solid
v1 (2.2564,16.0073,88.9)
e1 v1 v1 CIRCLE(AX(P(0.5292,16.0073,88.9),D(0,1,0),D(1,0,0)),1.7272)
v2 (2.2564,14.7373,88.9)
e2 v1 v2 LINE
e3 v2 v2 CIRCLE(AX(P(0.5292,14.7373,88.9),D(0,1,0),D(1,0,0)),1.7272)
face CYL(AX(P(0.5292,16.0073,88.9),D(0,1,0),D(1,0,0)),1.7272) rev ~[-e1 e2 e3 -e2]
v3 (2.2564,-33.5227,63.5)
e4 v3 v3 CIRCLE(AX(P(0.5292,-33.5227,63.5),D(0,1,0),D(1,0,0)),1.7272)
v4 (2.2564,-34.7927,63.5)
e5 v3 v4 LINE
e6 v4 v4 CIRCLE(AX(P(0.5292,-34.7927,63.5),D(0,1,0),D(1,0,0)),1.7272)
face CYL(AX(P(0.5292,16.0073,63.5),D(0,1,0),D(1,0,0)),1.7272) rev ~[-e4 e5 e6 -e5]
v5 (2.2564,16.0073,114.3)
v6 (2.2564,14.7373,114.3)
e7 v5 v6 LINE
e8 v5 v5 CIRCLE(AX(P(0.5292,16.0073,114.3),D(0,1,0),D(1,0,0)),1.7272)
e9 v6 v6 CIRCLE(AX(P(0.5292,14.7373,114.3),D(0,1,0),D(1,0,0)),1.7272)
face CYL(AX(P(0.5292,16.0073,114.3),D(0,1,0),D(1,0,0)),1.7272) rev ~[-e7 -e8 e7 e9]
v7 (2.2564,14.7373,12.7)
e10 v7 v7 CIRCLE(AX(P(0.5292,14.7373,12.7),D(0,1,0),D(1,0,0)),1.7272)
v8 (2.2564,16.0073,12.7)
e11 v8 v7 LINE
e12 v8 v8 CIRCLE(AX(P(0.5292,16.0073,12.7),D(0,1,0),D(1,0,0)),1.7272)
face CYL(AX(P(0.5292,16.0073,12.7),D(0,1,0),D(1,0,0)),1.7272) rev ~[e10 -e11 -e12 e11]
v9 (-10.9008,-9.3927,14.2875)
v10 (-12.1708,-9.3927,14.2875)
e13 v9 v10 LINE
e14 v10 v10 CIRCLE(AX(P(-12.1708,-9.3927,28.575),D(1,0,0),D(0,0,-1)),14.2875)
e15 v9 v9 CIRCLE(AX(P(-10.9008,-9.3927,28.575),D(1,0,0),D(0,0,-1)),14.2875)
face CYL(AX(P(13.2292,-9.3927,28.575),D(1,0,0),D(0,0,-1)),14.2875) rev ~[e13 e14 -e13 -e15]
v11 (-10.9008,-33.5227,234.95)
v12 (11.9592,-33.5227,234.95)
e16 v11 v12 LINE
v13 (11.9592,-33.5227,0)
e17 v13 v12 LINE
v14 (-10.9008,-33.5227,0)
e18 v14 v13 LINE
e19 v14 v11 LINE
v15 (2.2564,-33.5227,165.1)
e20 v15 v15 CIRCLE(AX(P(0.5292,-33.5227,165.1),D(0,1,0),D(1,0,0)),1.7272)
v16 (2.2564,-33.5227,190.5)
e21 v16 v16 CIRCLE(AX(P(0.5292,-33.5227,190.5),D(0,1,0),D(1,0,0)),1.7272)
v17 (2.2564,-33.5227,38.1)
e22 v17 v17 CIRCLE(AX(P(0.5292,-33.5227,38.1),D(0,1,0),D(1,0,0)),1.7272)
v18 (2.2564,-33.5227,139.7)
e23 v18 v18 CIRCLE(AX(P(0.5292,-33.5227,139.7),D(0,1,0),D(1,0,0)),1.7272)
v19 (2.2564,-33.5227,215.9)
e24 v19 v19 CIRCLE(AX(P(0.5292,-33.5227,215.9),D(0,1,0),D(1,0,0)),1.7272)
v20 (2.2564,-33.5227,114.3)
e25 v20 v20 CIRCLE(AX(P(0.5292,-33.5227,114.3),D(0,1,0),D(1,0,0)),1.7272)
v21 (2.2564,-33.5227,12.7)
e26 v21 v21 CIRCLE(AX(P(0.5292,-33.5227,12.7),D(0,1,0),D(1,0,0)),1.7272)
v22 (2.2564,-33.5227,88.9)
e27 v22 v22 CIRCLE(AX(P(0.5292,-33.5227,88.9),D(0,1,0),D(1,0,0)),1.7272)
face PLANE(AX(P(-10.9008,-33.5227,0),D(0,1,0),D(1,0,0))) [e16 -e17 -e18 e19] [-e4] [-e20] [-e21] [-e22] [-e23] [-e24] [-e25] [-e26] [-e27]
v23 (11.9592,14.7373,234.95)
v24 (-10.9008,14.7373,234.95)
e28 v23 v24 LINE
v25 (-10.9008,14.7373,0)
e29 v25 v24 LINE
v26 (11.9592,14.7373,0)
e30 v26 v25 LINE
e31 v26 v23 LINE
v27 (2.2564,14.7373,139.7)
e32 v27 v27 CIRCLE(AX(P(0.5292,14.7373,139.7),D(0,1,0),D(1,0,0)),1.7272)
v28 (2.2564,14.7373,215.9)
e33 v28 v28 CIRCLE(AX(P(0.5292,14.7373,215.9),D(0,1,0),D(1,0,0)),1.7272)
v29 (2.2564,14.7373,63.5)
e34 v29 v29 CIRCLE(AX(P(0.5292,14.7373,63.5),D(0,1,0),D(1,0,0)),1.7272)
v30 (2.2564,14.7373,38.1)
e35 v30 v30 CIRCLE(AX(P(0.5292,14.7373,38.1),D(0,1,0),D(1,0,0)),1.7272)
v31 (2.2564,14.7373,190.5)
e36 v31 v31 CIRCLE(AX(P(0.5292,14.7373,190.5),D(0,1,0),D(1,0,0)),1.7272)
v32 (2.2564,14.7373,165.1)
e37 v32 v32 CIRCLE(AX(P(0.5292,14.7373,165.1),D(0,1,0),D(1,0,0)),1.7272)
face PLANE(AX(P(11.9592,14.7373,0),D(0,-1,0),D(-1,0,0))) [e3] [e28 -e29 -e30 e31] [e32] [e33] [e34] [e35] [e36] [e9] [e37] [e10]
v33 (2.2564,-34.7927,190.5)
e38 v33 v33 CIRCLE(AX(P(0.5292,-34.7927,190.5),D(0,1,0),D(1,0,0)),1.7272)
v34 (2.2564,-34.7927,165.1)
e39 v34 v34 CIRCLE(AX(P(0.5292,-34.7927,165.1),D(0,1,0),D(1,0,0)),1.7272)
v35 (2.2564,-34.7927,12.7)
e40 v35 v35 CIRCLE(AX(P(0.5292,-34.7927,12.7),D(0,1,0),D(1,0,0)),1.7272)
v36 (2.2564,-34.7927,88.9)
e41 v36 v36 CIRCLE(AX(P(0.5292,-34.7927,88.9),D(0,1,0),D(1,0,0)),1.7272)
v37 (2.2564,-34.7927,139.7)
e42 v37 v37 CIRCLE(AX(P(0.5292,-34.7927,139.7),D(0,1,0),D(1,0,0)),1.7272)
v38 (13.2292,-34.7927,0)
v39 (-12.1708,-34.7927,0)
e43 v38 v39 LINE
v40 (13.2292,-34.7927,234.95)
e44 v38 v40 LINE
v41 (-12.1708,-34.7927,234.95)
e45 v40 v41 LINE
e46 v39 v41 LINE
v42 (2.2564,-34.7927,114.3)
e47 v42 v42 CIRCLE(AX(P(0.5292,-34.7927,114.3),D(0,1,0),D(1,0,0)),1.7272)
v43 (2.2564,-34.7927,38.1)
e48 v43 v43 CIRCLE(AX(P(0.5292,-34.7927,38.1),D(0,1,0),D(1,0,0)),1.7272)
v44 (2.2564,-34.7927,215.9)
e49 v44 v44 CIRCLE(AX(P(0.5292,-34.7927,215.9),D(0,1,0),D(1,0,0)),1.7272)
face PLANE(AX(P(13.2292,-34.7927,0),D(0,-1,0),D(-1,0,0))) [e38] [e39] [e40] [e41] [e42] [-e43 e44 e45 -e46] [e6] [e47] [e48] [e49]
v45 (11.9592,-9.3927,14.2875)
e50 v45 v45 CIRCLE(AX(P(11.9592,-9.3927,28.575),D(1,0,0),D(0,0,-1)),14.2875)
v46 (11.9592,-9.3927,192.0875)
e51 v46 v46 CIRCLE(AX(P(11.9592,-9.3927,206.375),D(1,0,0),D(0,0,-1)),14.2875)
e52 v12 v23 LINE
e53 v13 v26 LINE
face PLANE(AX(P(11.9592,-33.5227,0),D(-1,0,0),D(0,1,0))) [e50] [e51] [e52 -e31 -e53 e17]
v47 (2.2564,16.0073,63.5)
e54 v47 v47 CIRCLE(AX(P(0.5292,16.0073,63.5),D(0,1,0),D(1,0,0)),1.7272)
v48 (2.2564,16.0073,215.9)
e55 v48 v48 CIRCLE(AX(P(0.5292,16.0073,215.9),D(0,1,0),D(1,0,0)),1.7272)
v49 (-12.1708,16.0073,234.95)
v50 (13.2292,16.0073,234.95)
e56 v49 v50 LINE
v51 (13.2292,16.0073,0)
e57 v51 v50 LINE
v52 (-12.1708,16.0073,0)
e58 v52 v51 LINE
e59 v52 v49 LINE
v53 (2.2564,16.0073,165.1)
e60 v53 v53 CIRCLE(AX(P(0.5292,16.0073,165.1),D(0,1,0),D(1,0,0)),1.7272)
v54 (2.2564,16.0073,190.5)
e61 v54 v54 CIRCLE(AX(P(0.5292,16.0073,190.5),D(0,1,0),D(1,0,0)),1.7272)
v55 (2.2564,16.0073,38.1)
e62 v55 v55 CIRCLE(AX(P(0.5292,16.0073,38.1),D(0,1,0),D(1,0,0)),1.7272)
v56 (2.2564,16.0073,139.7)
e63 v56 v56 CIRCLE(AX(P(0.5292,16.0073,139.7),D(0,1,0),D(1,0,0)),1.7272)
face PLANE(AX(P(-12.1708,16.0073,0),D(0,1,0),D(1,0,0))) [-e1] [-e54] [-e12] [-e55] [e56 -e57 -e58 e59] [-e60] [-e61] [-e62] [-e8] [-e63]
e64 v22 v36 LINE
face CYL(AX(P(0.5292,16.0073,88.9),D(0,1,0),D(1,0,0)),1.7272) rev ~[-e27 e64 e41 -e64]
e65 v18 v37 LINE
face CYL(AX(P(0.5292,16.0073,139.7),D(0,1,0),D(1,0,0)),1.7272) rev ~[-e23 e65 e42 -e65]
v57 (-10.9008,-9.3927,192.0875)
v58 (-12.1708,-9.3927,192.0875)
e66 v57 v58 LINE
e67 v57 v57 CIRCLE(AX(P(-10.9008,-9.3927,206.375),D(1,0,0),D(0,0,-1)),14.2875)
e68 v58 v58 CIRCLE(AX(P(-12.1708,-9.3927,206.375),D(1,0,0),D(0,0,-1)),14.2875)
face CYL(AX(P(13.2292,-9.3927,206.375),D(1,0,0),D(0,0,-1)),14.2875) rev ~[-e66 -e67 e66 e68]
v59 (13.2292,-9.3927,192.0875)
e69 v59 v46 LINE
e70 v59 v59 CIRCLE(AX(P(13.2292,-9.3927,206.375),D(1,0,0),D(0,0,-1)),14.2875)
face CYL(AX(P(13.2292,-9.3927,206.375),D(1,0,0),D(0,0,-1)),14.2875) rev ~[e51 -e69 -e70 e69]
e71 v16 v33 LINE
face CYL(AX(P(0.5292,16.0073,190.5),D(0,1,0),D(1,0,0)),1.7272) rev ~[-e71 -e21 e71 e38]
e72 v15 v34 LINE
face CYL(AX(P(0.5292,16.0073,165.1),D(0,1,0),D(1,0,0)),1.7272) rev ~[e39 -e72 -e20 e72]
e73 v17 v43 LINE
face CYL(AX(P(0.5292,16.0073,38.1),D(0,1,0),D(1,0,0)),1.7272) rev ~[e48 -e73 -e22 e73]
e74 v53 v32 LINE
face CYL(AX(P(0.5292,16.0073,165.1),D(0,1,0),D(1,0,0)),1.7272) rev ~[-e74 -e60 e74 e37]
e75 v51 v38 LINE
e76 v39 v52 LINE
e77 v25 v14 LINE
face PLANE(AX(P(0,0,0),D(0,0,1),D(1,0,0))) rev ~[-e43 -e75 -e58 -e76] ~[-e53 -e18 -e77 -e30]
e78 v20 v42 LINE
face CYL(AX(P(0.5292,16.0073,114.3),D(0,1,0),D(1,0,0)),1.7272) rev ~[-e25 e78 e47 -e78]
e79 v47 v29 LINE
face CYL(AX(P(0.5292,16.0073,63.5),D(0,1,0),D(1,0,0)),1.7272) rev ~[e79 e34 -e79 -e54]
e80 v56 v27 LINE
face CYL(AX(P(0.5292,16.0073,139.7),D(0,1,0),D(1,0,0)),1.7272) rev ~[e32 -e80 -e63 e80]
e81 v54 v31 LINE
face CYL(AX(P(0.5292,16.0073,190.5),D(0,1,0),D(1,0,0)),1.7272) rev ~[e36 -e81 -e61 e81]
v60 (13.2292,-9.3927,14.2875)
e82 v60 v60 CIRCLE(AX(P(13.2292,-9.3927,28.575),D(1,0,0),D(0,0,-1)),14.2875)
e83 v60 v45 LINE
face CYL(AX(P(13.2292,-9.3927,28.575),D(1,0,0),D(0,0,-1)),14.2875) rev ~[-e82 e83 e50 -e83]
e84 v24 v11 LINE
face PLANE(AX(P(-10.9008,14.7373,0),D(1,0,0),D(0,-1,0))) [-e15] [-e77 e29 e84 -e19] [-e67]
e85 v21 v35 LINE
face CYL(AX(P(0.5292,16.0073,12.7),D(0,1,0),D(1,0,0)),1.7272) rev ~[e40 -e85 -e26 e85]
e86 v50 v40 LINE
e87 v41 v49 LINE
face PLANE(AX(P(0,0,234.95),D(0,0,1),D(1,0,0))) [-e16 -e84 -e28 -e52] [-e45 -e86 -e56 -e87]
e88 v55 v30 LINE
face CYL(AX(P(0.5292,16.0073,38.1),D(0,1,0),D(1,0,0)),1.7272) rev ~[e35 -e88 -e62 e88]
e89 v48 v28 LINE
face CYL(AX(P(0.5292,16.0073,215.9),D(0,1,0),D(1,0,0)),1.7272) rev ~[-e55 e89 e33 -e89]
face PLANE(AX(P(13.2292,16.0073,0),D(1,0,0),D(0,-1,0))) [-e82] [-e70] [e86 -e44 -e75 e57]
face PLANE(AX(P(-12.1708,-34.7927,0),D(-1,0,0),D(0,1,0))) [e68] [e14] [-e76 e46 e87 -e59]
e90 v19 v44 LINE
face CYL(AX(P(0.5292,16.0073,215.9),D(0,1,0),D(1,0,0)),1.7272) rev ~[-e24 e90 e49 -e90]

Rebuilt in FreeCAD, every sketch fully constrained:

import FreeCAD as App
import Part
import Sketcher
Q = App.Units.Quantity


def add_polygon(sketch, points):
    """Adds a closed chain of lines whose ends are joined by coincident constraints."""
    first, n = sketch.GeometryCount, len(points)
    for a, b in zip(points, points[1:] + points[:1]):
        sketch.addGeometry(Part.LineSegment(App.Vector(*a, 0), App.Vector(*b, 0)), False)
    for i in range(n):
        sketch.addConstraint(Sketcher.Constraint("Coincident", first + i, 2, first + (i + 1) % n, 1))

doc = App.newDocument("Part")
params = doc.addObject("Spreadsheet::Sheet", "Params")
for row, (alias, value) in enumerate([
    ("sketch1_width", "1 in"),
    ("sketch1_height", "2 in"),
    ("pad1_length", "9.25 in"),
    ("sketch2_diameter", "0.136 in"),
    ("linearpattern_pitch", "1 in"),
    ("sketch3_diameter", "1.125 in"),
], start=1):
    params.set(f"A{row}", alias)
    params.set(f"B{row}", "=" + value)
    params.setAlias(f"B{row}", alias)

body = doc.addObject("PartDesign::Body", "Body")

sketch1 = doc.addObject("Sketcher::SketchObject", "Sketch")
body.addObject(sketch1)
sketch1.AttachmentSupport = (doc.XY_Plane, [""])
sketch1.MapMode = "FlatFace"
add_polygon(sketch1, [(13, 16), (-12, 16), (-12, -35), (13, -35)])
add_polygon(sketch1, [(-11, 15), (12, 15), (12, -34), (-11, -34)])
sketch1.addConstraint([
    Sketcher.Constraint("Horizontal", 0),
    Sketcher.Constraint("Vertical", 1),
    Sketcher.Constraint("Horizontal", 2),
    Sketcher.Constraint("Vertical", 3),
    Sketcher.Constraint("Horizontal", 4),
    Sketcher.Constraint("Vertical", 5),
    Sketcher.Constraint("Horizontal", 6),
    Sketcher.Constraint("Vertical", 7),
    Sketcher.Constraint("DistanceX", 0, 2, 0, 1, Q("1 in")),
    Sketcher.Constraint("DistanceY", 1, 2, 1, 1, Q("2 in")),
    Sketcher.Constraint("DistanceX", 4, 2, 3, 2, Q("0.05 in")),
    Sketcher.Constraint("DistanceY", 4, 2, 3, 2, Q("0.05 in")),
    Sketcher.Constraint("DistanceY", 2, 2, 5, 2, Q("0.05 in")),
    Sketcher.Constraint("DistanceX", 1, 2, 6, 2, Q("0.05 in")),
    Sketcher.Constraint("DistanceY", -1, 1, 0, 2, Q("0.6302 in")),
    Sketcher.Constraint("DistanceX", 0, 2, -1, 1, 12.1708),
])
sketch1.setExpression("Constraints[16]", "Params.sketch1_width")
sketch1.setExpression("Constraints[17]", "Params.sketch1_height")
pad1 = doc.addObject("PartDesign::Pad", "Pad")
body.addObject(pad1)
pad1.Profile = sketch1
pad1.setExpression("Length", "Params.pad1_length")

sketch2 = doc.addObject("Sketcher::SketchObject", "Sketch001")
body.addObject(sketch2)
sketch2.AttachmentSupport = (doc.XZ_Plane, [""])
sketch2.MapMode = "FlatFace"
sketch2.AttachmentOffset = App.Placement(App.Vector(0, 0, -0.6302087 * 25.4), App.Rotation())
sketch2.addGeometry(Part.Circle(App.Vector(0.5, 12.7, 0), App.Vector(0, 0, 1), 1.7), False)
sketch2.addConstraint([
    Sketcher.Constraint("Diameter", 0, Q("0.136 in")),
    Sketcher.Constraint("DistanceY", -1, 1, 0, 3, Q("0.5 in")),
    Sketcher.Constraint("DistanceX", -1, 1, 0, 3, 0.5292),
])
sketch2.setExpression("Constraints[0]", "Params.sketch2_diameter")
pocket1 = doc.addObject("PartDesign::Pocket", "Pocket")
body.addObject(pocket1)
pocket1.Profile = sketch2
pocket1.Type = "ThroughAll"
pocket1.Reversed = True
doc.recompute()

linearpattern = doc.addObject("PartDesign::LinearPattern", "LinearPattern")
body.addObject(linearpattern)
linearpattern.Originals = [pocket1]
linearpattern.Direction = (doc.Z_Axis, [""])
linearpattern.Mode = "offset"
linearpattern.setExpression("Offset", "Params.linearpattern_pitch")
linearpattern.Occurrences = 23
body.Tip = linearpattern

sketch3 = doc.addObject("Sketcher::SketchObject", "Sketch002")
body.addObject(sketch3)
sketch3.AttachmentSupport = (doc.YZ_Plane, [""])
sketch3.MapMode = "FlatFace"
sketch3.AttachmentOffset = App.Placement(App.Vector(0, 0, 13.2292), App.Rotation())
sketch3.addGeometry([
    Part.Circle(App.Vector(-9, 206, 0), App.Vector(0, 0, 1), 14),
    Part.Circle(App.Vector(-9, 29, 0), App.Vector(0, 0, 1), 14),
], False)
sketch3.addConstraint([
    Sketcher.Constraint("Equal", 0, 1),
    Sketcher.Constraint("Vertical", 0, 3, 1, 3),
    Sketcher.Constraint("Diameter", 0, Q("1.125 in")),
    Sketcher.Constraint("DistanceY", -1, 1, 1, 3, Q("1.125 in")),
    Sketcher.Constraint("DistanceY", 1, 3, 0, 3, Q("7 in")),
    Sketcher.Constraint("DistanceX", 0, 3, -1, 1, Q("0.3698 in")),
])
sketch3.setExpression("Constraints[2]", "Params.sketch3_diameter")
pocket2 = doc.addObject("PartDesign::Pocket", "Pocket001")
body.addObject(pocket2)
pocket2.Profile = sketch3
pocket2.Type = "ThroughAll"

doc.recompute()
